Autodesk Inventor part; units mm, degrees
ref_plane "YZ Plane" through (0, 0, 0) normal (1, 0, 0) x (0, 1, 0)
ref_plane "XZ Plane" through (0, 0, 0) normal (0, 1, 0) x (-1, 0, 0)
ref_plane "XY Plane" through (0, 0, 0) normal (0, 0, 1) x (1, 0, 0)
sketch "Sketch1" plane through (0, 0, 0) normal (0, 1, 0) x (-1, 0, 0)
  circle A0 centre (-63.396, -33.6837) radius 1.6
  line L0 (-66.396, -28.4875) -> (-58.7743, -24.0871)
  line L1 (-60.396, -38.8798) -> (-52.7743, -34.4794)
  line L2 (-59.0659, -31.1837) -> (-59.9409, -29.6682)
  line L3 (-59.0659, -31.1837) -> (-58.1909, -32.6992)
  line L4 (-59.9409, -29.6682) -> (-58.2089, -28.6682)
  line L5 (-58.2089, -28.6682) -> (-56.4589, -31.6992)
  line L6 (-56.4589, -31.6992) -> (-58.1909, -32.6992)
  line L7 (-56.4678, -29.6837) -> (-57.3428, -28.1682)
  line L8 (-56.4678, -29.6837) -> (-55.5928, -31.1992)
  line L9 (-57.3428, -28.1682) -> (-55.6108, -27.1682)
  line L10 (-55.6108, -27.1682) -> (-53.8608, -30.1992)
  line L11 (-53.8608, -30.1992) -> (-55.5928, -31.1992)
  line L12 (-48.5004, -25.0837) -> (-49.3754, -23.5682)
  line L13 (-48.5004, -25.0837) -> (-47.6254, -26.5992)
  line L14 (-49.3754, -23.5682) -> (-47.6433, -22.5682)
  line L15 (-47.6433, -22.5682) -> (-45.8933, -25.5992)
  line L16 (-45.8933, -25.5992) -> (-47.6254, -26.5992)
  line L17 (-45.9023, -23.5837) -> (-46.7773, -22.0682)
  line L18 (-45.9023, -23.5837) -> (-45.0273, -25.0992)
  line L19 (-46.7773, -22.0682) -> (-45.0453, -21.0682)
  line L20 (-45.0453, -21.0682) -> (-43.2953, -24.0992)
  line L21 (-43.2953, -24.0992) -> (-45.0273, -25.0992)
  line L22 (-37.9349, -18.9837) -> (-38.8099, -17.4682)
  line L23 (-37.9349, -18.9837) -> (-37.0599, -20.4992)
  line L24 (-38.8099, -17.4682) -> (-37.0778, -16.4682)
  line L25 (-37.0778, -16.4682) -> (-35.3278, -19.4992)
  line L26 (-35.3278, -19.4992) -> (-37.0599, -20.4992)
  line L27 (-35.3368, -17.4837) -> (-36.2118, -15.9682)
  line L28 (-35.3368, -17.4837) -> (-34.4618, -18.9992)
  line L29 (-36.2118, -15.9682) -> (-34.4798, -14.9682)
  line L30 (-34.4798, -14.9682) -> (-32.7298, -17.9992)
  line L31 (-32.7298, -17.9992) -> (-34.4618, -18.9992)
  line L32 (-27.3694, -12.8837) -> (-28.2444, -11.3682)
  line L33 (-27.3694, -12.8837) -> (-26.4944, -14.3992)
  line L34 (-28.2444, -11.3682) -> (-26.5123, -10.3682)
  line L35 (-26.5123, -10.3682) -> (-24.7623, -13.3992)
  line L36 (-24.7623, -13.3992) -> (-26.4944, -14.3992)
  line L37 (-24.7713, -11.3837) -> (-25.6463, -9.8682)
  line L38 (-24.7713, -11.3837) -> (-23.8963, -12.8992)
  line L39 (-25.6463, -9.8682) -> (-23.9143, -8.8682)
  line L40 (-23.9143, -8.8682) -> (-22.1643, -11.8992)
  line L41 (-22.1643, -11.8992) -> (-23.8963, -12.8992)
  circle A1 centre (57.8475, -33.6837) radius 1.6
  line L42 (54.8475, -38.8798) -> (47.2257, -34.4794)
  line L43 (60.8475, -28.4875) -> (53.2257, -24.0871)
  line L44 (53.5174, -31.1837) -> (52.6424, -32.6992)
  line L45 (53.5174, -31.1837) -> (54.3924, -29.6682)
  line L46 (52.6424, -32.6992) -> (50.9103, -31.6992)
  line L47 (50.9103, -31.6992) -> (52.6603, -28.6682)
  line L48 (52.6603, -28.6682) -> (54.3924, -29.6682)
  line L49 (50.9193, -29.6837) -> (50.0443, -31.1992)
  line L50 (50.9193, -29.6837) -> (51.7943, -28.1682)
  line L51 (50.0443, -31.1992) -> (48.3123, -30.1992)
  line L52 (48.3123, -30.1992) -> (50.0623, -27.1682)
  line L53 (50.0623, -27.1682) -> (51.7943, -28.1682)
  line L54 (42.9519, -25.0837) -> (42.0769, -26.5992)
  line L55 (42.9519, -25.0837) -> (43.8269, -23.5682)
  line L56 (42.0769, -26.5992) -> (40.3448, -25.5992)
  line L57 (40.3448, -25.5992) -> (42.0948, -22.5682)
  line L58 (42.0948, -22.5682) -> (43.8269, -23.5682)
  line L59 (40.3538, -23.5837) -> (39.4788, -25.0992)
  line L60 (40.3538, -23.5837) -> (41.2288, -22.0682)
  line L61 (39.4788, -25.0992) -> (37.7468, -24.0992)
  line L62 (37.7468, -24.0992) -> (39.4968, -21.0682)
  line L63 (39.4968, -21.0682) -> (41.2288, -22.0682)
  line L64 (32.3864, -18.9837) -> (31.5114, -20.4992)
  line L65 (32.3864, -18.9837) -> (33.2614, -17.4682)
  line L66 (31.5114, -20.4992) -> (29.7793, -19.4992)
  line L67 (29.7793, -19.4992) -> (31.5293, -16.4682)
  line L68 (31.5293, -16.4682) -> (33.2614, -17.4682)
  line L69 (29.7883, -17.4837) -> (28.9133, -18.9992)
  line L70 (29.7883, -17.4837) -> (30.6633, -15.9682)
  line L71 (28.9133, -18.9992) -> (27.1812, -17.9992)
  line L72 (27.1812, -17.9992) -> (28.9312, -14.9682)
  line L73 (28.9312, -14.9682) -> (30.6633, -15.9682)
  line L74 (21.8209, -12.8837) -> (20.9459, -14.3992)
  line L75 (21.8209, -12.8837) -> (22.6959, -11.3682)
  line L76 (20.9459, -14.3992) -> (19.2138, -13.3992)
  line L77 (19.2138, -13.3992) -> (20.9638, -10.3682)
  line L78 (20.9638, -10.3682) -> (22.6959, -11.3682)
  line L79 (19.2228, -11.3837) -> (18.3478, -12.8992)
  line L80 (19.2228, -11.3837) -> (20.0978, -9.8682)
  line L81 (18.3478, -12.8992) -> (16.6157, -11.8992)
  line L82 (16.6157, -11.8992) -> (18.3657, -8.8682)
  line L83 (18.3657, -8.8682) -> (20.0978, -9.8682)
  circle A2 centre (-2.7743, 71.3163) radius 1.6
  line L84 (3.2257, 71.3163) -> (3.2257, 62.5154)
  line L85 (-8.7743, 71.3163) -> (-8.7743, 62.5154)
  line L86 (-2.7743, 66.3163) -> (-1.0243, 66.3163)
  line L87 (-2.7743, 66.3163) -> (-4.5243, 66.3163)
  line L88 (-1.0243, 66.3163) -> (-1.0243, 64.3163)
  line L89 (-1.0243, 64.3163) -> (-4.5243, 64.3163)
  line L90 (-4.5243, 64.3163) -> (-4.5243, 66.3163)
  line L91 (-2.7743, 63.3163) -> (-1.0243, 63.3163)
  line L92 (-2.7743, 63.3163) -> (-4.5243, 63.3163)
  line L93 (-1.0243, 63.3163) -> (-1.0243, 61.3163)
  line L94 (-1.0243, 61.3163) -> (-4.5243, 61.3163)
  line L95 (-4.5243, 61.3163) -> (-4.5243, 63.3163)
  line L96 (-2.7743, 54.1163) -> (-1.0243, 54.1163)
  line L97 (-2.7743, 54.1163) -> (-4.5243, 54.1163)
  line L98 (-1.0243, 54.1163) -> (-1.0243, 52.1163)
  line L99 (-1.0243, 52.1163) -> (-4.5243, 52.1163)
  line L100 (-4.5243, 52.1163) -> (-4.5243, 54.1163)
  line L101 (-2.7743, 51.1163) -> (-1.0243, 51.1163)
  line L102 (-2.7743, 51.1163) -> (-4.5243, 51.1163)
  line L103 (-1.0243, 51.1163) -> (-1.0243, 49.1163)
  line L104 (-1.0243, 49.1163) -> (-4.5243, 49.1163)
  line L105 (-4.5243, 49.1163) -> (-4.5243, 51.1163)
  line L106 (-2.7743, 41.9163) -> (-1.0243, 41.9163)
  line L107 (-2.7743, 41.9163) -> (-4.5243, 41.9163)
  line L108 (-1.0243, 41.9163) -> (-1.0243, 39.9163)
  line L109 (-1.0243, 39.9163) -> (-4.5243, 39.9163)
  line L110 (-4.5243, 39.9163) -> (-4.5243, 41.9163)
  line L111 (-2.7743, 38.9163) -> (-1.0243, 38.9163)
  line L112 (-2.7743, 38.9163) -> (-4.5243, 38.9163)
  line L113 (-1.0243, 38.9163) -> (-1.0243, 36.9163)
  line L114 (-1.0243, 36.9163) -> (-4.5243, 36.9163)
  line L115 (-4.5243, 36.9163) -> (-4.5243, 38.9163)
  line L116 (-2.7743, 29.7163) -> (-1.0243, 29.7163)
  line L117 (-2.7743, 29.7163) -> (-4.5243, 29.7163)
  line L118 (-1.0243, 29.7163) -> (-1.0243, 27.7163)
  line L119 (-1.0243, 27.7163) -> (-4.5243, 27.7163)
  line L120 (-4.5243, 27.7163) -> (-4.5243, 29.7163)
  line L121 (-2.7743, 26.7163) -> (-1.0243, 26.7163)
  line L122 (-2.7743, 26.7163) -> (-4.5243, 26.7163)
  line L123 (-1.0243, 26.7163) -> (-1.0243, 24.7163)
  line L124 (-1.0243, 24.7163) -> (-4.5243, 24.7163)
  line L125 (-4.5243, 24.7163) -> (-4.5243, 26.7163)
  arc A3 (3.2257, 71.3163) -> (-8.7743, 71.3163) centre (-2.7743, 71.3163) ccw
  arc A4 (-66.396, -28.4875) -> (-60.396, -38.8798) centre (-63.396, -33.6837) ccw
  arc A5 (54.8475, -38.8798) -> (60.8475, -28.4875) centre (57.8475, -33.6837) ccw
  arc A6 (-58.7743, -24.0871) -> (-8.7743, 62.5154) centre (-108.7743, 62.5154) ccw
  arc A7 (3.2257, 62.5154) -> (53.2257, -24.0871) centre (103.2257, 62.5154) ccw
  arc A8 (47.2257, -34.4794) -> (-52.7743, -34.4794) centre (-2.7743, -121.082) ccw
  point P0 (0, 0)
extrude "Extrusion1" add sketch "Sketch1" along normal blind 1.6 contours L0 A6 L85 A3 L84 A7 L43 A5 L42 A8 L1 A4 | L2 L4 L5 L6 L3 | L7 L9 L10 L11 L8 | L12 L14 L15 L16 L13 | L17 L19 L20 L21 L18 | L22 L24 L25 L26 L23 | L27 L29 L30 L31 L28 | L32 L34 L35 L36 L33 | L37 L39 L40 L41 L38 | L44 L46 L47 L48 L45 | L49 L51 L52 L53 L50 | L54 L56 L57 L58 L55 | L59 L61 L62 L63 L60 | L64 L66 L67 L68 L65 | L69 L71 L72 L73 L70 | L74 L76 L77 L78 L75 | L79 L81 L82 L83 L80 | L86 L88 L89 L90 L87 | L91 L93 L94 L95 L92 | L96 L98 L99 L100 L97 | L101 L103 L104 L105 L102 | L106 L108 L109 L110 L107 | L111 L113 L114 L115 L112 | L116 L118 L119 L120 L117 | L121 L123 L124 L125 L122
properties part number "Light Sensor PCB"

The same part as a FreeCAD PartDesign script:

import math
import FreeCAD as App
import Part
import Sketcher

V = App.Vector

doc = App.newDocument("Part")
body = doc.addObject("PartDesign::Body", "Body")

sketch1 = body.newObject("Sketcher::SketchObject", "Sketch")
sketch1.AttachmentSupport = (doc.getObject("XZ_Plane"), [""])
sketch1.MapMode = "FlatFace"
sketch1.addGeometry(Part.LineSegment(V(58.7743, -24.0871, 0), V(66.396, -28.4875, 0)), False)
sketch1.addGeometry(Part.ArcOfCircle(Part.Circle(V(63.396, -33.6837, 0), V(0, 0, 1), 6.000041), math.radians(-120.00025), math.radians(60.000227)), False)
sketch1.addGeometry(Part.LineSegment(V(60.396, -38.8798, 0), V(52.7743, -34.4794, 0)), False)
sketch1.addGeometry(Part.ArcOfCircle(Part.Circle(V(2.7743, -121.082, 0), V(0, 0, 1), 100.000052), math.radians(60.000017), math.radians(119.999983)), False)
sketch1.addGeometry(Part.LineSegment(V(-47.2257, -34.4794, 0), V(-54.8475, -38.8798, 0)), False)
sketch1.addGeometry(Part.ArcOfCircle(Part.Circle(V(-57.8475, -33.6837, 0), V(0, 0, 1), 5.999955), math.radians(119.999773), math.radians(300.00025)), False)
sketch1.addGeometry(Part.LineSegment(V(-60.8475, -28.4875, 0), V(-53.2257, -24.0871, 0)), False)
sketch1.addGeometry(Part.ArcOfCircle(Part.Circle(V(-103.2257, 62.5154, 0), V(0, 0, 1), 100), math.radians(-59.999988), math.radians(0)), False)
sketch1.addGeometry(Part.LineSegment(V(-3.2257, 62.5154, 0), V(-3.2257, 71.3163, 0)), False)
sketch1.addGeometry(Part.ArcOfCircle(Part.Circle(V(2.7743, 71.3163, 0), V(0, 0, 1), 6), math.radians(0), math.radians(180)), False)
sketch1.addGeometry(Part.LineSegment(V(8.7743, 71.3163, 0), V(8.7743, 62.5154, 0)), False)
sketch1.addGeometry(Part.ArcOfCircle(Part.Circle(V(108.7743, 62.5154, 0), V(0, 0, 1), 99.999965), math.radians(180), math.radians(239.999988)), False)
sketch1.addGeometry(Part.Circle(V(63.396, -33.6837, 0), V(0, 0, 1), 1.6), False)
sketch1.addGeometry(Part.Circle(V(-57.8475, -33.6837, 0), V(0, 0, 1), 1.6), False)
sketch1.addGeometry(Part.Circle(V(2.7743, 71.3163, 0), V(0, 0, 1), 1.6), False)
sketch1.addConstraint(Sketcher.Constraint("Tangent", 0, 2, 1, 2))
sketch1.addConstraint(Sketcher.Constraint("Tangent", 1, 1, 2, 1))
sketch1.addConstraint(Sketcher.Constraint("Tangent", 2, 2, 3, 1))
sketch1.addConstraint(Sketcher.Constraint("Tangent", 3, 2, 4, 1))
sketch1.addConstraint(Sketcher.Constraint("Tangent", 4, 2, 5, 2))
sketch1.addConstraint(Sketcher.Constraint("Tangent", 5, 1, 6, 1))
sketch1.addConstraint(Sketcher.Constraint("Tangent", 6, 2, 7, 1))
sketch1.addConstraint(Sketcher.Constraint("Tangent", 7, 2, 8, 1))
sketch1.addConstraint(Sketcher.Constraint("Tangent", 8, 2, 9, 2))
sketch1.addConstraint(Sketcher.Constraint("Tangent", 9, 1, 10, 1))
sketch1.addConstraint(Sketcher.Constraint("Tangent", 10, 2, 11, 1))
sketch1.addConstraint(Sketcher.Constraint("Tangent", 11, 2, 0, 1))
sketch1.addConstraint(Sketcher.Constraint("Vertical", 8))
sketch1.addConstraint(Sketcher.Constraint("Vertical", 10))
sketch1.addConstraint(Sketcher.Constraint("Coincident", 12, 3, 1, 3))
sketch1.addConstraint(Sketcher.Constraint("Coincident", 13, 3, 5, 3))
sketch1.addConstraint(Sketcher.Constraint("Coincident", 14, 3, 9, 3))
sketch1.addConstraint(Sketcher.Constraint("Equal", 1, 5))
sketch1.addConstraint(Sketcher.Constraint("Equal", 3, 7))
sketch1.addConstraint(Sketcher.Constraint("Equal", 5, 9))
sketch1.addConstraint(Sketcher.Constraint("Equal", 7, 11))
sketch1.addConstraint(Sketcher.Constraint("Equal", 12, 13))
sketch1.addConstraint(Sketcher.Constraint("Equal", 13, 14))
sketch1.addConstraint(Sketcher.Constraint("Parallel", 0, 2))
sketch1.addConstraint(Sketcher.Constraint("Parallel", 4, 6))
sketch1.addConstraint(Sketcher.Constraint("Horizontal", 1, 3, 5, 3))
sketch1.addConstraint(Sketcher.Constraint("Horizontal", 7, 3, 11, 3))
sketch1.addConstraint(Sketcher.Constraint("Horizontal", 2, 2, 3, 2))
sketch1.addConstraint(Sketcher.Constraint("Equal", 0, 2))
sketch1.addConstraint(Sketcher.Constraint("Radius", 1, 6.0))
sketch1.addConstraint(Sketcher.Constraint("Radius", 3, 100.0))
sketch1.addConstraint(Sketcher.Constraint("Diameter", 12, 3.2))
sketch1.addConstraint(Sketcher.Constraint("DistanceY", 1, 3, 9, 3, 105.0))
sketch1.addConstraint(Sketcher.Constraint("DistanceY", 8, 1, 8, 2, 8.801))
sketch1.addConstraint(Sketcher.Constraint("DistanceX", -1, 1, 1, 3, 63.396))
sketch1.addConstraint(Sketcher.Constraint("DistanceY", 3, 3, -1, 1, 121.082))
pad1 = body.newObject("PartDesign::Pad", "Pad")
pad1.Profile = sketch1
pad1.Length = 1.6
pad1.Reversed = True

doc.recompute()
